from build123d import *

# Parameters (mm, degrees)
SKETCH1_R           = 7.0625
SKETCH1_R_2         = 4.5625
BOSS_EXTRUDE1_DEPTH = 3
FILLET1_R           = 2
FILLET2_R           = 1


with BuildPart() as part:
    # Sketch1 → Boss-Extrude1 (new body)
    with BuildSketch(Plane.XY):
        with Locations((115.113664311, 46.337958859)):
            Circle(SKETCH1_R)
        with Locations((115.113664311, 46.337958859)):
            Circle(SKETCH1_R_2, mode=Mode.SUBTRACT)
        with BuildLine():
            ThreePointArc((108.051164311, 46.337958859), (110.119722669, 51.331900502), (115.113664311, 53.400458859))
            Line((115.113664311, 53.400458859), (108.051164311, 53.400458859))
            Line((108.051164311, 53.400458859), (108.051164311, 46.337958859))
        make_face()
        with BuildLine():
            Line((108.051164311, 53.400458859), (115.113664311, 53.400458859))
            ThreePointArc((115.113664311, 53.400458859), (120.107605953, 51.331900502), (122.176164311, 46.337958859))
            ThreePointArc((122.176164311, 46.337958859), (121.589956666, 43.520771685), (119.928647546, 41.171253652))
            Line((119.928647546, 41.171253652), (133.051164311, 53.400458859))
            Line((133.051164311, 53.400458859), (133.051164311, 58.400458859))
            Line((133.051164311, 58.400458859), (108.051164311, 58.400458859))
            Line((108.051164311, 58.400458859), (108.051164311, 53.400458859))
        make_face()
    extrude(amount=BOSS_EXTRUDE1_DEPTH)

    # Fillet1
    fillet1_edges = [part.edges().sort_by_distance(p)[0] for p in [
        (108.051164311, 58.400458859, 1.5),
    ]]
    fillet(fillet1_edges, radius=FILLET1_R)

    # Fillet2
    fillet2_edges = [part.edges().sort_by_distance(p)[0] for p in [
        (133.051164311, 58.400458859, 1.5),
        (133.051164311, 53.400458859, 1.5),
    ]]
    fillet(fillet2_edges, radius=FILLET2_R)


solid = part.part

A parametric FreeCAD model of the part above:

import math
import FreeCAD as App
import Part
import Sketcher

V = App.Vector
Q = App.Units.Quantity


def edges_at(feature, points):
    """Names of the edges that pass closest to the given points."""
    edges = feature.Shape.Edges
    near = lambda p: min(range(len(edges)), key=lambda i: edges[i].distToShape(Part.Vertex(*p))[0])
    return sorted({f"Edge{near(p) + 1}" for p in points})

doc = App.newDocument("Part")
body = doc.addObject("PartDesign::Body", "Body")

# Sketch on XY plane
sketch1 = body.newObject("Sketcher::SketchObject", "Sketch")
sketch1.AttachmentSupport = (doc.getObject("XY_Plane"), [""])
sketch1.MapMode = "FlatFace"
sketch1.addGeometry(Part.ArcOfCircle(Part.Circle(V(115.1, 46.3, 0), V(0, 0, 1), 7.1), math.radians(180), math.radians(313)), False)
sketch1.addGeometry(Part.LineSegment(V(119.9, 41.2, 0), V(133.1, 53.4, 0)), False)
sketch1.addGeometry(Part.LineSegment(V(133.1, 53.4, 0), V(133.1, 58.4, 0)), False)
sketch1.addGeometry(Part.LineSegment(V(133.1, 58.4, 0), V(108.1, 58.4, 0)), False)
sketch1.addGeometry(Part.LineSegment(V(108.1, 58.4, 0), V(108.1, 46.3, 0)), False)
sketch1.addGeometry(Part.Circle(V(115.1, 46.3, 0), V(0, 0, 1), 4.6), False)
sketch1.addConstraint(Sketcher.Constraint("Tangent", 0, 2, 1, 1))
sketch1.addConstraint(Sketcher.Constraint("Coincident", 1, 2, 2, 1))
sketch1.addConstraint(Sketcher.Constraint("Coincident", 2, 2, 3, 1))
sketch1.addConstraint(Sketcher.Constraint("Coincident", 3, 2, 4, 1))
sketch1.addConstraint(Sketcher.Constraint("Tangent", 4, 2, 0, 1))
sketch1.addConstraint(Sketcher.Constraint("Vertical", 2))
sketch1.addConstraint(Sketcher.Constraint("Horizontal", 3))
sketch1.addConstraint(Sketcher.Constraint("Vertical", 4))
sketch1.addConstraint(Sketcher.Constraint("Coincident", 5, 3, 0, 3))
sketch1.addConstraint(Sketcher.Constraint("DistanceX", 3, 2, 3, 1, Q("25 mm")))
sketch1.addConstraint(Sketcher.Constraint("DistanceY", 2, 1, 2, 2, Q("5 mm")))
sketch1.addConstraint(Sketcher.Constraint("Diameter", 5, Q("9.125 mm")))
sketch1.addConstraint(Sketcher.Constraint("Radius", 0, Q("7.0625 mm")))
sketch1.addConstraint(Sketcher.Constraint("DistanceY", 4, 2, 4, 1, Q("12.0625 mm")))
sketch1.addConstraint(Sketcher.Constraint("DistanceY", -1, 1, 0, 3, Q("46.337959 mm")))
sketch1.addConstraint(Sketcher.Constraint("DistanceX", -1, 1, 0, 3, Q("115.113664 mm")))
pad1 = body.newObject("PartDesign::Pad", "Pad")
pad1.Profile = sketch1
pad1.Length = 3
doc.recompute()

fillet = body.newObject("PartDesign::Fillet", "Fillet")
fillet.Base = (pad1, edges_at(pad1, [(108.051, 58.4, 1.5)]))
fillet.Radius = 2
doc.recompute()

fillet2 = body.newObject("PartDesign::Fillet", "Fillet001")
fillet2.Base = (fillet, edges_at(fillet, [(133.051, 58.4, 1.5), (133.051, 53.4, 1.5)]))
fillet2.Radius = 1

doc.recompute()
